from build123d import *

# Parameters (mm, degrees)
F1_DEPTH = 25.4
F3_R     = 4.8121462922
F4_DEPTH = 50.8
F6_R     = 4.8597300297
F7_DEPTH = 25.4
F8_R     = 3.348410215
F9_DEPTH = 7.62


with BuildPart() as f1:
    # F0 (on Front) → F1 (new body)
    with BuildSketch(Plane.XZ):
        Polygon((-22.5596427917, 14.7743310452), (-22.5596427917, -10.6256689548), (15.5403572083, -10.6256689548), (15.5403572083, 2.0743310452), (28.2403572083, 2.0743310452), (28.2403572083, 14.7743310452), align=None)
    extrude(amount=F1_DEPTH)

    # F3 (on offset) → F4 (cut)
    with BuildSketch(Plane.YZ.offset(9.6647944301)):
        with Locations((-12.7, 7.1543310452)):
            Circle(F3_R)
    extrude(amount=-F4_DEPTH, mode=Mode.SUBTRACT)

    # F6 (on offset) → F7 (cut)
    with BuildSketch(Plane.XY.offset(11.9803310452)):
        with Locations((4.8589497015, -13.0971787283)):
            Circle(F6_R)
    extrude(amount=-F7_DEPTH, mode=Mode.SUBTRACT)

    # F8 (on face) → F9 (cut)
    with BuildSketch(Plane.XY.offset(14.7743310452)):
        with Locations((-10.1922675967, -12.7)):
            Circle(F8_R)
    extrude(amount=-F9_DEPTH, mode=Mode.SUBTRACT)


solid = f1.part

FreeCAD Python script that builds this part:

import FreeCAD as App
import Part
import Sketcher
from FreeCAD import Vector
Q = App.Units.Quantity


def add_polygon(sketch, points):
    """Adds a closed chain of lines whose ends are joined by coincident constraints."""
    first, n = sketch.GeometryCount, len(points)
    for a, b in zip(points, points[1:] + points[:1]):
        sketch.addGeometry(Part.LineSegment(App.Vector(*a, 0), App.Vector(*b, 0)), False)
    for i in range(n):
        sketch.addConstraint(Sketcher.Constraint("Coincident", first + i, 2, first + (i + 1) % n, 1))

doc = App.newDocument("Part")
params = doc.addObject("Spreadsheet::Sheet", "Params")
for row, (alias, value) in enumerate([
    ("sketch1_width", "2 in"),
    ("sketch1_height", "1 in"),
    ("pad1_length", "1 in"),
    ("pocket1_length", "2 in"),
    ("pocket2_length", "1 in"),
    ("pocket3_length", "0.3 in"),
], start=1):
    params.set(f"A{row}", alias)
    params.set(f"B{row}", "=" + value)
    params.setAlias(f"B{row}", alias)

body = doc.addObject("PartDesign::Body", "Body")

sketch1 = body.newObject("Sketcher::SketchObject", "Sketch")
sketch1.AttachmentSupport = (doc.getObject("XZ_Plane"), [""])
sketch1.MapMode = "FlatFace"
add_polygon(sketch1, [(-22.559643, 14.774331), (-22.559643, -10.625669), (15.540357, -10.625669), (15.540357, 2.074331), (28.240357, 2.074331), (28.240357, 14.774331)])
sketch1.addConstraint([
    Sketcher.Constraint("Vertical", 0),
    Sketcher.Constraint("Horizontal", 1),
    Sketcher.Constraint("Vertical", 2),
    Sketcher.Constraint("Horizontal", 3),
    Sketcher.Constraint("Vertical", 4),
    Sketcher.Constraint("Horizontal", 5),
    Sketcher.Constraint("Equal", 3, 2),
    Sketcher.Constraint("Equal", 2, 4),
    Sketcher.Constraint("DistanceX", 5, 2, 5, 1, Q("2 in")),
    Sketcher.Constraint("DistanceY", 0, 2, 0, 1, Q("1 in")),
    Sketcher.Constraint("DistanceY", 0, 2, -1, 1, Q("10.625669 mm")),
    Sketcher.Constraint("DistanceX", 0, 2, -1, 1, Q("22.559643 mm")),
])
sketch1.setExpression("Constraints[14]", "Params.sketch1_width")
sketch1.setExpression("Constraints[15]", "Params.sketch1_height")
pad1 = body.newObject("PartDesign::Pad", "Pad")
pad1.Profile = sketch1
pad1.setExpression("Length", "Params.pad1_length")

sketch2 = body.newObject("Sketcher::SketchObject", "Sketch001")
sketch2.AttachmentSupport = (doc.getObject("YZ_Plane"), [""])
sketch2.MapMode = "FlatFace"
sketch2.AttachmentOffset = App.Placement(Vector(0, 0, 9.664794), App.Rotation())
sketch2.addGeometry(Part.Circle(Vector(-12.7, 7.154331, 0), Vector(0, 0, 1), 4.812146), False)
sketch2.addConstraint([
    Sketcher.Constraint("DistanceX", 0, 3, -1, 1, Q("0.5 in")),
    Sketcher.Constraint("Diameter", 0, Q("9.624293 mm")),
    Sketcher.Constraint("DistanceY", -1, 1, 0, 3, Q("7.154331 mm")),
])
pocket1 = body.newObject("PartDesign::Pocket", "Pocket")
pocket1.Profile = sketch2
pocket1.setExpression("Length", "Params.pocket1_length")

sketch3 = body.newObject("Sketcher::SketchObject", "Sketch002")
sketch3.AttachmentSupport = (doc.getObject("XY_Plane"), [""])
sketch3.MapMode = "FlatFace"
sketch3.AttachmentOffset = App.Placement(Vector(0, 0, 11.980331), App.Rotation())
sketch3.addGeometry(Part.Circle(Vector(4.85895, -13.097179, 0), Vector(0, 0, 1), 4.85973), False)
sketch3.addConstraint([
    Sketcher.Constraint("Diameter", 0, Q("9.71946 mm")),
    Sketcher.Constraint("DistanceX", -1, 1, 0, 3, Q("4.85895 mm")),
    Sketcher.Constraint("DistanceY", 0, 3, -1, 1, Q("13.097179 mm")),
])
pocket2 = body.newObject("PartDesign::Pocket", "Pocket001")
pocket2.Profile = sketch3
pocket2.setExpression("Length", "Params.pocket2_length")

sketch4 = body.newObject("Sketcher::SketchObject", "Sketch003")
sketch4.AttachmentSupport = (doc.getObject("XY_Plane"), [""])
sketch4.MapMode = "FlatFace"
sketch4.AttachmentOffset = App.Placement(Vector(0, 0, 14.774331), App.Rotation())
sketch4.addGeometry(Part.Circle(Vector(-10.192268, -12.7, 0), Vector(0, 0, 1), 3.34841), False)
sketch4.addConstraint([
    Sketcher.Constraint("DistanceY", 0, 3, -1, 1, Q("0.5 in")),
    Sketcher.Constraint("Diameter", 0, Q("6.69682 mm")),
    Sketcher.Constraint("DistanceX", 0, 3, -1, 1, Q("10.192268 mm")),
])
pocket3 = body.newObject("PartDesign::Pocket", "Pocket002")
pocket3.Profile = sketch4
pocket3.setExpression("Length", "Params.pocket3_length")

doc.recompute()
